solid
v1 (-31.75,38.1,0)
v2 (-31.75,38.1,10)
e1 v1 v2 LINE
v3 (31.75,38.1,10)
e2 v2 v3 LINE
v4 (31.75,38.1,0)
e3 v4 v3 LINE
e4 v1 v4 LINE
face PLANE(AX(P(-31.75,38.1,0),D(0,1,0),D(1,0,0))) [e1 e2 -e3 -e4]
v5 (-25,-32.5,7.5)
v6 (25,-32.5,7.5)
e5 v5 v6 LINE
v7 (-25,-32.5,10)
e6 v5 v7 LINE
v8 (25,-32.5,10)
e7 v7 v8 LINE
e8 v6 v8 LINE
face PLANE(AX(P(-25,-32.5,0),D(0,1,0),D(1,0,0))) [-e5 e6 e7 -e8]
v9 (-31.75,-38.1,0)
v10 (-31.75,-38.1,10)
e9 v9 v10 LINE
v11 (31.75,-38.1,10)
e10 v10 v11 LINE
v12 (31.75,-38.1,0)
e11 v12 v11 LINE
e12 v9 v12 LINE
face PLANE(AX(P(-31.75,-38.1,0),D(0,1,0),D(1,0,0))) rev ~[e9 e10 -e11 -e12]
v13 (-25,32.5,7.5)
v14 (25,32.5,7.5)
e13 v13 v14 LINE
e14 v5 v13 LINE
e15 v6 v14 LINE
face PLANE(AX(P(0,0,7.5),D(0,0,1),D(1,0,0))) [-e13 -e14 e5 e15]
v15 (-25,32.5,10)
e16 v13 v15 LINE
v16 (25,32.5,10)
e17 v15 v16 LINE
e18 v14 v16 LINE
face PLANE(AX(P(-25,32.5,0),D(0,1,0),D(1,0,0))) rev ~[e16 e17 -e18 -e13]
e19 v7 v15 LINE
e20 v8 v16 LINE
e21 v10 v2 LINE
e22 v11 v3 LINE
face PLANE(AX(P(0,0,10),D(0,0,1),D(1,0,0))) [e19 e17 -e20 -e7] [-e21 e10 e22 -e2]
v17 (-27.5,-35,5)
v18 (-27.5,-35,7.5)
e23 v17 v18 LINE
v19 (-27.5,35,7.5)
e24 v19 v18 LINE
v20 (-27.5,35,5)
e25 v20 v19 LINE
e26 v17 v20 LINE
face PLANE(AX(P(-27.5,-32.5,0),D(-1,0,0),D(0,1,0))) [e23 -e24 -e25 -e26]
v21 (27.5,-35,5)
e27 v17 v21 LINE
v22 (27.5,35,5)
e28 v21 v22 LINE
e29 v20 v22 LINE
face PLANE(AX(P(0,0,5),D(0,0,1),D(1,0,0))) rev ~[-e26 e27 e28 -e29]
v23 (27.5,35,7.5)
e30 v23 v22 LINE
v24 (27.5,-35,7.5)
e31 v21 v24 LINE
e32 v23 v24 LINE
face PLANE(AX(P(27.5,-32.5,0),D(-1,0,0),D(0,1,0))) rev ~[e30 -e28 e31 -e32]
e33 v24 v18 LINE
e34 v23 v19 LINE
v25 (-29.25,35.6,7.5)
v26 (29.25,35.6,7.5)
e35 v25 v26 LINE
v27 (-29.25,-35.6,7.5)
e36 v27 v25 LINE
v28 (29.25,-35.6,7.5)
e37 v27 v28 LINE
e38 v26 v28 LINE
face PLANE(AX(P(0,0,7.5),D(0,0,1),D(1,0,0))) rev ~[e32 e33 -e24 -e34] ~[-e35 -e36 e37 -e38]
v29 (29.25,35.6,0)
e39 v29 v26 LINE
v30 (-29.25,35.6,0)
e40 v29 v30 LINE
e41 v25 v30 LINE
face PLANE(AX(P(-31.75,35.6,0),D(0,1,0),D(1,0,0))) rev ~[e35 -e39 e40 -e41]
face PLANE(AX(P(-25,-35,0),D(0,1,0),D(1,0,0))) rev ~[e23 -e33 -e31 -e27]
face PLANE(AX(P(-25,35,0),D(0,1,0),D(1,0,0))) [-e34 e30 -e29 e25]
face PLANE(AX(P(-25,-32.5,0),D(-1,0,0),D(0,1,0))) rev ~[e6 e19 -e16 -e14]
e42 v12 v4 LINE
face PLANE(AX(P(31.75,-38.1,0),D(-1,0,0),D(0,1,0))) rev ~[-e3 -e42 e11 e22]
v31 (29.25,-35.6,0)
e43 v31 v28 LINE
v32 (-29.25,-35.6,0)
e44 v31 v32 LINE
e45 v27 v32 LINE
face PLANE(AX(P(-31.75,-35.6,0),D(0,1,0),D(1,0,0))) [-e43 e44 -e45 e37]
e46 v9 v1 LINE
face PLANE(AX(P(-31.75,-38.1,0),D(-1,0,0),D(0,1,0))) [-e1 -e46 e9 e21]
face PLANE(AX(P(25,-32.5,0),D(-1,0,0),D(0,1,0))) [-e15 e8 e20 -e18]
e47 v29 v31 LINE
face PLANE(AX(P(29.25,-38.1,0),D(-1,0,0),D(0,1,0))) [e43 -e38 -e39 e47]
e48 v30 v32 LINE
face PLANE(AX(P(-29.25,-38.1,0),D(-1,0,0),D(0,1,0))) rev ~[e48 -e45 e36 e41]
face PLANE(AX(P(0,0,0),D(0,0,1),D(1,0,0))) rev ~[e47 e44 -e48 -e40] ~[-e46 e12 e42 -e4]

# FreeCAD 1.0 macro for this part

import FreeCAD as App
import Part
import Sketcher

V = App.Vector
Q = App.Units.Quantity


def faces_at(feature, points):
    """Names of the faces that lie closest to the given points."""
    faces = feature.Shape.Faces
    near = lambda p: min(range(len(faces)), key=lambda i: faces[i].distToShape(Part.Vertex(*p))[0])
    return sorted({f"Face{near(p) + 1}" for p in points})


def add_polygon(sketch, points):
    """Adds a closed chain of lines whose ends are joined by coincident constraints."""
    first, n = sketch.GeometryCount, len(points)
    for a, b in zip(points, points[1:] + points[:1]):
        sketch.addGeometry(Part.LineSegment(App.Vector(*a, 0), App.Vector(*b, 0)), False)
    for i in range(n):
        sketch.addConstraint(Sketcher.Constraint("Coincident", first + i, 2, first + (i + 1) % n, 1))

doc = App.newDocument("Part")
body = doc.addObject("PartDesign::Body", "Body")

sketch1 = body.newObject("Sketcher::SketchObject", "Sketch")
sketch1.AttachmentSupport = (doc.getObject("XY_Plane"), [""])
sketch1.MapMode = "FlatFace"
add_polygon(sketch1, [(-25, 32.5), (-25, -32.5), (25, -32.5), (25, 32.5)])
sketch1.addConstraint([
    Sketcher.Constraint("Vertical", 0),
    Sketcher.Constraint("Horizontal", 1),
    Sketcher.Constraint("Vertical", 2),
    Sketcher.Constraint("Horizontal", 3),
    Sketcher.Constraint("Symmetric", 0, 2, 2, 2, -1, 1),
    Sketcher.Constraint("DistanceX", 1, 1, 1, 2, Q("50 mm")),
    Sketcher.Constraint("DistanceY", 0, 2, 0, 1, Q("65 mm")),
])
pad1 = body.newObject("PartDesign::Pad", "Pad")
pad1.Profile = sketch1
pad1.Length = 7.5

sketch2 = body.newObject("Sketcher::SketchObject", "Sketch001")
sketch2.AttachmentSupport = (doc.getObject("XY_Plane"), [""])
sketch2.MapMode = "FlatFace"
add_polygon(sketch2, [(-31.75, 38.1), (-31.75, -38.1), (31.75, -38.1), (31.75, 38.1)])
add_polygon(sketch2, [(25, -32.5), (-25, -32.5), (-25, 32.5), (25, 32.5)])
sketch2.addConstraint([
    Sketcher.Constraint("Vertical", 0),
    Sketcher.Constraint("Horizontal", 1),
    Sketcher.Constraint("Vertical", 2),
    Sketcher.Constraint("Horizontal", 3),
    Sketcher.Constraint("Horizontal", 4),
    Sketcher.Constraint("Vertical", 5),
    Sketcher.Constraint("Horizontal", 6),
    Sketcher.Constraint("Vertical", 7),
    Sketcher.Constraint("Symmetric", 0, 2, 2, 2, -1, 1),
    Sketcher.Constraint("Symmetric", 4, 2, 6, 2, -1, 1),
    Sketcher.Constraint("DistanceX", 4, 2, 4, 1, Q("50 mm")),
    Sketcher.Constraint("DistanceY", 5, 1, 5, 2, Q("65 mm")),
    Sketcher.Constraint("DistanceX", 1, 1, 1, 2, Q("63.5 mm")),
    Sketcher.Constraint("DistanceY", 0, 2, 0, 1, Q("76.2 mm")),
])
pad2 = body.newObject("PartDesign::Pad", "Pad001")
pad2.Profile = sketch2
pad2.Length = 10
doc.recompute()

thickness = body.newObject("PartDesign::Thickness", "Thickness")
thickness.Base = (pad2, faces_at(pad2, [(0, 0, 0)]))
thickness.Value = 2.5
thickness.Reversed = True
thickness.Join = "Intersection"

doc.recompute()
